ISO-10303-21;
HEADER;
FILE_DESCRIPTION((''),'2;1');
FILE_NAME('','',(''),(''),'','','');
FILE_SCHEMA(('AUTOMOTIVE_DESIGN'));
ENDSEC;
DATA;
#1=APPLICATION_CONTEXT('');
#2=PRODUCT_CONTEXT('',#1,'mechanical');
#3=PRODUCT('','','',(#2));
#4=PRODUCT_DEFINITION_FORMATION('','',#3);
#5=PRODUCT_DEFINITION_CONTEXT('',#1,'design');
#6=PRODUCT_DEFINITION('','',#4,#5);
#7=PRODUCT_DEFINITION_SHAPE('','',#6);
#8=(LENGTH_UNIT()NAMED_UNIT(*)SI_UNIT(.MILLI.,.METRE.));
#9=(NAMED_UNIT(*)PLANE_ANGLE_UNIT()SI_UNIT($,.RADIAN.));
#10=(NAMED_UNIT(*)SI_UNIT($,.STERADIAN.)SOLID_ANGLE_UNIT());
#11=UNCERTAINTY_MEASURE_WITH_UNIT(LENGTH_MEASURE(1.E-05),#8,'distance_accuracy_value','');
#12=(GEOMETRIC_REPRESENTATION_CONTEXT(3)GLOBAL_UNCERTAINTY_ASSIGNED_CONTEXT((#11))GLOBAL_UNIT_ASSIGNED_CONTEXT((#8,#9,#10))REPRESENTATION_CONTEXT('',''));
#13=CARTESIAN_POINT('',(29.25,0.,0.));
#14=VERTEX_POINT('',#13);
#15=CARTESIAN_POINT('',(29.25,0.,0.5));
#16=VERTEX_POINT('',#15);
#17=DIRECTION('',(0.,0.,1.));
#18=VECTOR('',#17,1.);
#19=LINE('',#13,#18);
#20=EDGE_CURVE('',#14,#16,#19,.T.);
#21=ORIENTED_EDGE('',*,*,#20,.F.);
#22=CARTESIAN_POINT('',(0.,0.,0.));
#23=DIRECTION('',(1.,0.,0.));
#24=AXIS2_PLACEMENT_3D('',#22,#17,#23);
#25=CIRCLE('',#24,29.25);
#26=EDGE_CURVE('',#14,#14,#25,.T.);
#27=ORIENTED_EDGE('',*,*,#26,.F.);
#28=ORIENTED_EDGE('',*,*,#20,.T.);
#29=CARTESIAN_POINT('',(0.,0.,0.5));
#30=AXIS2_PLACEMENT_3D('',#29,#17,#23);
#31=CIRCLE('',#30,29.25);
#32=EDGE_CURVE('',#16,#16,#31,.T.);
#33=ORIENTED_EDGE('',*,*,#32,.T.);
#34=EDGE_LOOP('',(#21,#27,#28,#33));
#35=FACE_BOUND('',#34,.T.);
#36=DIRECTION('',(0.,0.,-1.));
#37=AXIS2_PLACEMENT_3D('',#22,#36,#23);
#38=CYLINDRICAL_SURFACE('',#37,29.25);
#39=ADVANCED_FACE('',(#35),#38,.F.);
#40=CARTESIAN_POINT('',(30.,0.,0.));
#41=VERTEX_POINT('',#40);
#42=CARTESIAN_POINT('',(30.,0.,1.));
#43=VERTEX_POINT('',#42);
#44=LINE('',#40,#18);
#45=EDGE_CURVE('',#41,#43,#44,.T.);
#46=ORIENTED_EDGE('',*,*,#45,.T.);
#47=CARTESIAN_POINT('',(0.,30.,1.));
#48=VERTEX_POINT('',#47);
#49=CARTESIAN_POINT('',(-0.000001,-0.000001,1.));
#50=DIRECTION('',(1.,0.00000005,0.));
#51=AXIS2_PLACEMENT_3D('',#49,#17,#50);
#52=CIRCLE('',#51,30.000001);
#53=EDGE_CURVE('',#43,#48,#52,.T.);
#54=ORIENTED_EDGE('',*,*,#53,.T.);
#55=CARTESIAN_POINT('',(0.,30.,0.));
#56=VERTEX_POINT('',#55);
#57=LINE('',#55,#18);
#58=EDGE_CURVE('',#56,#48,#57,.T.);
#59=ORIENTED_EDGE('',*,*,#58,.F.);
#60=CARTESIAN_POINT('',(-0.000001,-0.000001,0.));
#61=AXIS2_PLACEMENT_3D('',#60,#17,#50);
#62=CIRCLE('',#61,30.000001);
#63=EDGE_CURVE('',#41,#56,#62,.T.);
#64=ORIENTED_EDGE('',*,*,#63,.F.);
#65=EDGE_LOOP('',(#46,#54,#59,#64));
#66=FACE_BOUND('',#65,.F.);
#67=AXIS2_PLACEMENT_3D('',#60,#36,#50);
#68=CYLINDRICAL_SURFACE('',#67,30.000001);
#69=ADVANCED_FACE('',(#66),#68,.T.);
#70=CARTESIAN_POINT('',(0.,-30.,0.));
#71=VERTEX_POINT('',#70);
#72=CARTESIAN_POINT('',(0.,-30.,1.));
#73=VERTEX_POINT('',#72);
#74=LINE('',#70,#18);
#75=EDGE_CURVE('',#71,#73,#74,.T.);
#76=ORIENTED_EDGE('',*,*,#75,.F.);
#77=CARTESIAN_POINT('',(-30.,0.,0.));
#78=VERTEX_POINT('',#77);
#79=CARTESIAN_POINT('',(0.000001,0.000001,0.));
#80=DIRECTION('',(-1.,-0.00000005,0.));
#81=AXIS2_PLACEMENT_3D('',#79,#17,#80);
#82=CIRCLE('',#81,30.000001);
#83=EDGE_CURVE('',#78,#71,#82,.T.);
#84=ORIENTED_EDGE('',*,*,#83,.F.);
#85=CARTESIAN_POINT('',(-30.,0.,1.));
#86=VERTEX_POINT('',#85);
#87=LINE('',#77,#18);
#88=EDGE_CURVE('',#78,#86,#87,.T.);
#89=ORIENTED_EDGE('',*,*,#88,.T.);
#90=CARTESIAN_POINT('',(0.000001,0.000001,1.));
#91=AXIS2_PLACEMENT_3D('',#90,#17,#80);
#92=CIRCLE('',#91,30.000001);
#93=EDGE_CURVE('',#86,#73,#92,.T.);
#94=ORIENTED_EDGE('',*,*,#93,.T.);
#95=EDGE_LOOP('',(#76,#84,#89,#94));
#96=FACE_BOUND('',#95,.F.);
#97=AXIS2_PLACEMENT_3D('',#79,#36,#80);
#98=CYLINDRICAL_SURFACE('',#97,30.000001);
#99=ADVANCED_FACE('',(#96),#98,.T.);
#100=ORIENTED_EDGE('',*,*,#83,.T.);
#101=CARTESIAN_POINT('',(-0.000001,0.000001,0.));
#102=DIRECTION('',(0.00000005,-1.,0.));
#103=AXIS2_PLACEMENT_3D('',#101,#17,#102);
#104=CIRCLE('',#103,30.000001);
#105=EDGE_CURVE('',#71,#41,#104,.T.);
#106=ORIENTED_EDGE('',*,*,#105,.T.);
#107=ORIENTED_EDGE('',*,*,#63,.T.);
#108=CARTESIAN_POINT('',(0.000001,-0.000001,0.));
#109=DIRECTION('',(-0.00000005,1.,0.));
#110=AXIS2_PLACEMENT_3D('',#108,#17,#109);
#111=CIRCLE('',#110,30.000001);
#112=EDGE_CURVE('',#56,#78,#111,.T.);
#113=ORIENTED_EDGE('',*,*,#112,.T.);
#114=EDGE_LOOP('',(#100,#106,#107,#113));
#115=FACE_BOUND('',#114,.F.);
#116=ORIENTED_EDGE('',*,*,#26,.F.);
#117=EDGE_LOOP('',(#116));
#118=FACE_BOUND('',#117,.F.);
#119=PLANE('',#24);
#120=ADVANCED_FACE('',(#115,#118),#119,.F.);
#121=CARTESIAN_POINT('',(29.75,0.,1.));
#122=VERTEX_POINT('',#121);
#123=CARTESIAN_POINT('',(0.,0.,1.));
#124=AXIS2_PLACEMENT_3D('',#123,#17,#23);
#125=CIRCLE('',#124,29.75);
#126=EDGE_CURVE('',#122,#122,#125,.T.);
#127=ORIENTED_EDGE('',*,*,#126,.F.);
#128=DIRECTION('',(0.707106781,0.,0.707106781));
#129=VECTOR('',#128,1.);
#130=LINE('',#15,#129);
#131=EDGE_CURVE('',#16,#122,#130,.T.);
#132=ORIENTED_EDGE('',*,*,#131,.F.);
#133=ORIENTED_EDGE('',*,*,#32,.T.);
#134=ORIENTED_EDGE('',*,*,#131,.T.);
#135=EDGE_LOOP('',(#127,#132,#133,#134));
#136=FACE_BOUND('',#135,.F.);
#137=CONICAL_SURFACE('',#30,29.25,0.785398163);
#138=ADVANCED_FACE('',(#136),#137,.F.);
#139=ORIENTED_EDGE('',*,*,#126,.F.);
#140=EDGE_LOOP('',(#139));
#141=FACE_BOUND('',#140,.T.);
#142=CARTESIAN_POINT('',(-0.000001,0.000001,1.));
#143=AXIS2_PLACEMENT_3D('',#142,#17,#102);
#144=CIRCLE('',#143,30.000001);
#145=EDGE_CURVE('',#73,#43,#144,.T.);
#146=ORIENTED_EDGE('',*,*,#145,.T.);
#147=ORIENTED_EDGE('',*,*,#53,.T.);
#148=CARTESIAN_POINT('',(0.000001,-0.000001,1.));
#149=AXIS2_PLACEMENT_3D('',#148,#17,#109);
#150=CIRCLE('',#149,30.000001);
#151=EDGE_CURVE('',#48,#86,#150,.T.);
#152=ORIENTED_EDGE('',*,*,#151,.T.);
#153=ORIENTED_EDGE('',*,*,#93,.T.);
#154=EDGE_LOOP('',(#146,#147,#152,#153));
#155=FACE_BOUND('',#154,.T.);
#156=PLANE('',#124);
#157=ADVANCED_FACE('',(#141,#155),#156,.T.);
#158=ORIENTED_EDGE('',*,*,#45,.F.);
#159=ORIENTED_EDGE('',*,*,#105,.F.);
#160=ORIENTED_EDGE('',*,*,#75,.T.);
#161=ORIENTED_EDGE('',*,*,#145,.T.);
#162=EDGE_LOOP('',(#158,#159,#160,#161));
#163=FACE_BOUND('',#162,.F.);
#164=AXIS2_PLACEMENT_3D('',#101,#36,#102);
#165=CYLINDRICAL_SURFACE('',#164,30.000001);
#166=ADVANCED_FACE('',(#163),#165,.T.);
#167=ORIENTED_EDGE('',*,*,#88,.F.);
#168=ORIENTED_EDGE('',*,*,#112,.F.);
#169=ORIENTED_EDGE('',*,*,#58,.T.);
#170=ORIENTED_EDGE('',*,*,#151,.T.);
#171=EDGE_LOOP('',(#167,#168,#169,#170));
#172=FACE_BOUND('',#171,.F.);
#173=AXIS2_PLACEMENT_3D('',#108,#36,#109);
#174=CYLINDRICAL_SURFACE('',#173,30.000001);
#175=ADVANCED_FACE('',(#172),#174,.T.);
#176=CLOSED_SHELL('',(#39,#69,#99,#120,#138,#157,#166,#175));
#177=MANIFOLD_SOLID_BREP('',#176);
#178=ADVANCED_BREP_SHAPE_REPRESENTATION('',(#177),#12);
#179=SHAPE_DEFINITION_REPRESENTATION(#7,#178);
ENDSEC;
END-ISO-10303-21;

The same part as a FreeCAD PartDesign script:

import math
import FreeCAD as App
import Part
import Sketcher

V = App.Vector
Q = App.Units.Quantity


def edges_at(feature, points):
    """Names of the edges that pass closest to the given points."""
    edges = feature.Shape.Edges
    near = lambda p: min(range(len(edges)), key=lambda i: edges[i].distToShape(Part.Vertex(*p))[0])
    return sorted({f"Edge{near(p) + 1}" for p in points})

doc = App.newDocument("Part")
body = doc.addObject("PartDesign::Body", "Body")

sketch1 = body.newObject("Sketcher::SketchObject", "Sketch")
sketch1.AttachmentSupport = (doc.getObject("XY_Plane"), [""])
sketch1.MapMode = "FlatFace"
sketch1.addGeometry([
    Part.ArcOfCircle(Part.Circle(V(0, 0, 0), V(0, 0, 1), 30), math.radians(0), math.radians(90)),
    Part.ArcOfCircle(Part.Circle(V(0, 0, 0), V(0, 0, 1), 30), math.radians(90), math.radians(180)),
    Part.ArcOfCircle(Part.Circle(V(0, 0, 0), V(0, 0, 1), 30), math.radians(-180), math.radians(-90)),
    Part.ArcOfCircle(Part.Circle(V(0, 0, 0), V(0, 0, 1), 30), math.radians(-90), math.radians(0)),
    Part.Circle(V(0, 0, 0), V(0, 0, 1), 29),
], False)
sketch1.addConstraint([
    Sketcher.Constraint("Tangent", 0, 2, 1, 1),
    Sketcher.Constraint("Tangent", 1, 2, 2, 1),
    Sketcher.Constraint("Tangent", 2, 2, 3, 1),
    Sketcher.Constraint("Tangent", 3, 2, 0, 1),
    Sketcher.Constraint("Coincident", 0, 3, -1, 1),
    Sketcher.Constraint("Coincident", 4, 3, -1, 1),
    Sketcher.Constraint("Equal", 0, 1),
    Sketcher.Constraint("PointOnObject", 0, 2, -2),
    Sketcher.Constraint("PointOnObject", 1, 2, -1),
    Sketcher.Constraint("PointOnObject", 2, 2, -2),
    Sketcher.Constraint("PointOnObject", 3, 2, -1),
    Sketcher.Constraint("Radius", 0, Q("30.000001 mm")),
    Sketcher.Constraint("Diameter", 4, Q("58.5 mm")),
])
pad1 = body.newObject("PartDesign::Pad", "Pad")
pad1.Profile = sketch1
pad1.Length = 1
doc.recompute()

chamfer = body.newObject("PartDesign::Chamfer", "Chamfer")
chamfer.Base = (pad1, edges_at(pad1, [(-29.25, 0, 1)]))
chamfer.Size = 0.5

doc.recompute()
